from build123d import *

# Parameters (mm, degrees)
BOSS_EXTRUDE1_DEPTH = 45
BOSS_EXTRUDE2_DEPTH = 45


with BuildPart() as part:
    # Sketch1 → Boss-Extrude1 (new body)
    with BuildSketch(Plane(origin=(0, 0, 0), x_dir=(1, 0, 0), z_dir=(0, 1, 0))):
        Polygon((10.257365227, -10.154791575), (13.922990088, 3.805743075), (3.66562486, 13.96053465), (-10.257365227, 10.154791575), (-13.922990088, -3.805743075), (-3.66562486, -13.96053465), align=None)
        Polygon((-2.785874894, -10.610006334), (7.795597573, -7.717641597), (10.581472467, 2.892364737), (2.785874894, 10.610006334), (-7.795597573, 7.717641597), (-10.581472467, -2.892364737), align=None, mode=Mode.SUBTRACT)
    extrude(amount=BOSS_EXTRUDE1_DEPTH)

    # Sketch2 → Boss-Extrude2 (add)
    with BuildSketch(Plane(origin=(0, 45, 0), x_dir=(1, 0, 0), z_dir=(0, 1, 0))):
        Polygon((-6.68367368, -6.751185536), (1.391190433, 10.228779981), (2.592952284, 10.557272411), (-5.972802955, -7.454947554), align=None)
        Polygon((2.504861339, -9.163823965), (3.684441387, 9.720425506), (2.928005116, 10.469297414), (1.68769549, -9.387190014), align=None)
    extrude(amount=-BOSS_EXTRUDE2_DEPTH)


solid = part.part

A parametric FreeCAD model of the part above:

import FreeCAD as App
import Part
import Sketcher

V = App.Vector
Q = App.Units.Quantity

doc = App.newDocument("Part")
params = doc.addObject("Spreadsheet::Sheet", "Params")
for row, (alias, value) in enumerate([
    ("pad1_length", "45 mm"),
    ("pad2_length", "45 mm"),
], start=1):
    params.set(f"A{row}", alias)
    params.set(f"B{row}", "=" + value)
    params.setAlias(f"B{row}", alias)

body = doc.addObject("PartDesign::Body", "Body")

# Sketch on XZ plane
sketch1 = body.newObject("Sketcher::SketchObject", "Sketch")
sketch1.AttachmentSupport = (doc.getObject("XZ_Plane"), [""])
sketch1.MapMode = "FlatFace"
sketch1.addGeometry([
    Part.LineSegment(V(10, 10, 0), V(14, -4, 0)),  # 0
    Part.LineSegment(V(14, -4, 0), V(4, -14, 0)),  # 1
    Part.LineSegment(V(4, -14, 0), V(-10, -10, 0)),  # 2
    Part.LineSegment(V(-10, -10, 0), V(-14, 4, 0)),  # 3
    Part.LineSegment(V(-14, 4, 0), V(-4, 14, 0)),  # 4
    Part.LineSegment(V(-4, 14, 0), V(10, 10, 0)),  # 5
    Part.LineSegment(V(8, 8, 0), V(-3, 11, 0)),  # 6
    Part.LineSegment(V(-3, 11, 0), V(-11, 3, 0)),  # 7
    Part.LineSegment(V(-11, 3, 0), V(-8, -8, 0)),  # 8
    Part.LineSegment(V(-8, -8, 0), V(3, -11, 0)),  # 9
    Part.LineSegment(V(3, -11, 0), V(11, -3, 0)),  # 10
    Part.LineSegment(V(11, -3, 0), V(8, 8, 0)),  # 11
], False)
sketch1.addConstraint([
    Sketcher.Constraint("Coincident", 0, 2, 1, 1),
    Sketcher.Constraint("Coincident", 1, 2, 2, 1),
    Sketcher.Constraint("Coincident", 2, 2, 3, 1),
    Sketcher.Constraint("Coincident", 3, 2, 4, 1),
    Sketcher.Constraint("Coincident", 4, 2, 5, 1),
    Sketcher.Constraint("Coincident", 5, 2, 0, 1),
    Sketcher.Constraint("Coincident", 6, 2, 7, 1),
    Sketcher.Constraint("Coincident", 7, 2, 8, 1),
    Sketcher.Constraint("Coincident", 8, 2, 9, 1),
    Sketcher.Constraint("Coincident", 9, 2, 10, 1),
    Sketcher.Constraint("Coincident", 10, 2, 11, 1),
    Sketcher.Constraint("Coincident", 11, 2, 6, 1),
    Sketcher.Constraint("Symmetric", 0, 2, 3, 2, -1, 1),
    Sketcher.Constraint("Symmetric", 1, 2, 4, 2, -1, 1),
    Sketcher.Constraint("Symmetric", 2, 2, 5, 2, -1, 1),
    Sketcher.Constraint("Symmetric", 6, 2, 9, 2, -1, 1),
    Sketcher.Constraint("Symmetric", 7, 2, 10, 2, -1, 1),
    Sketcher.Constraint("Symmetric", 8, 2, 11, 2, -1, 1),
    Sketcher.Constraint("Parallel", 5, 6),
    Sketcher.Constraint("Parallel", 4, 7),
    Sketcher.Constraint("Parallel", 3, 8),
    Sketcher.Constraint("Equal", 0, 1),
    Sketcher.Constraint("Equal", 1, 2),
    Sketcher.Constraint("Equal", 6, 7),
    Sketcher.Constraint("Equal", 7, 8),
    Sketcher.Constraint("DistanceY", 1, 2, 7, 2, Q("16.852899 mm")),
    Sketcher.Constraint("DistanceX", -1, 1, 0, 2, Q("13.92299 mm")),
    Sketcher.Constraint("DistanceY", 2, 2, -1, 1, Q("10.154792 mm")),
    Sketcher.Constraint("DistanceY", 8, 2, -1, 1, Q("7.717642 mm")),
    Sketcher.Constraint("DistanceY", 1, 2, 0, 2, Q("10.154792 mm")),
])
pad1 = body.newObject("PartDesign::Pad", "Pad")
pad1.Profile = sketch1
pad1.setExpression("Length", "Params.pad1_length")
pad1.Reversed = True

# Sketch on XZ plane
sketch2 = body.newObject("Sketcher::SketchObject", "Sketch001")
sketch2.AttachmentSupport = (doc.getObject("XZ_Plane"), [""])
sketch2.MapMode = "FlatFace"
sketch2.AttachmentOffset = App.Placement(V(0, 0, -45), App.Rotation())
sketch2.addGeometry([
    Part.LineSegment(V(1.4, -10.2, 0), V(-6.7, 6.8, 0)),  # 0
    Part.LineSegment(V(-6.7, 6.8, 0), V(-6, 7.5, 0)),  # 1
    Part.LineSegment(V(-6, 7.5, 0), V(2.6, -10.6, 0)),  # 2
    Part.LineSegment(V(2.6, -10.6, 0), V(1.4, -10.2, 0)),  # 3
    Part.LineSegment(V(2.5, 9.2, 0), V(3.7, -9.7, 0)),  # 4
    Part.LineSegment(V(3.7, -9.7, 0), V(2.9, -10.5, 0)),  # 5
    Part.LineSegment(V(2.9, -10.5, 0), V(1.7, 9.4, 0)),  # 6
    Part.LineSegment(V(1.7, 9.4, 0), V(2.5, 9.2, 0)),  # 7
], False)
sketch2.addConstraint([
    Sketcher.Constraint("Coincident", 0, 2, 1, 1),
    Sketcher.Constraint("Coincident", 1, 2, 2, 1),
    Sketcher.Constraint("Coincident", 2, 2, 3, 1),
    Sketcher.Constraint("Coincident", 3, 2, 0, 1),
    Sketcher.Constraint("Coincident", 4, 2, 5, 1),
    Sketcher.Constraint("Coincident", 5, 2, 6, 1),
    Sketcher.Constraint("Coincident", 6, 2, 7, 1),
    Sketcher.Constraint("Coincident", 7, 2, 4, 1),
    Sketcher.Constraint("Parallel", 0, 2),
    Sketcher.Constraint("Parallel", 1, 5),
    Sketcher.Constraint("Parallel", 4, 6),
    Sketcher.Constraint("Parallel", 3, 7),
    Sketcher.Constraint("Distance", 0, Q("18.802198 mm")),
    Sketcher.Constraint("DistanceX", 1, 2, 6, 2, Q("7.660498 mm")),
    Sketcher.Constraint("Distance", 1, Q("1.000309 mm")),
    Sketcher.Constraint("Distance", 2, Q("19.945231 mm")),
    Sketcher.Constraint("Distance", 3, Q("1.245849 mm")),
    Sketcher.Constraint("DistanceX", -1, 1, 3, 2, Q("1.39119 mm")),
    Sketcher.Constraint("DistanceY", 3, 2, -1, 1, Q("10.22878 mm")),
    Sketcher.Constraint("DistanceX", -1, 1, 4, 2, Q("3.684441 mm")),
    Sketcher.Constraint("DistanceY", -1, 1, 6, 2, Q("9.38719 mm")),
    Sketcher.Constraint("DistanceX", -1, 1, 7, 2, Q("2.504861 mm")),
    Sketcher.Constraint("DistanceX", 0, 2, 1, 2, Q("0.710871 mm")),
    Sketcher.Constraint("DistanceY", 4, 2, 0, 2, Q("16.471611 mm")),
])
pad2 = body.newObject("PartDesign::Pad", "Pad001")
pad2.Profile = sketch2
pad2.setExpression("Length", "Params.pad2_length")

doc.recompute()
